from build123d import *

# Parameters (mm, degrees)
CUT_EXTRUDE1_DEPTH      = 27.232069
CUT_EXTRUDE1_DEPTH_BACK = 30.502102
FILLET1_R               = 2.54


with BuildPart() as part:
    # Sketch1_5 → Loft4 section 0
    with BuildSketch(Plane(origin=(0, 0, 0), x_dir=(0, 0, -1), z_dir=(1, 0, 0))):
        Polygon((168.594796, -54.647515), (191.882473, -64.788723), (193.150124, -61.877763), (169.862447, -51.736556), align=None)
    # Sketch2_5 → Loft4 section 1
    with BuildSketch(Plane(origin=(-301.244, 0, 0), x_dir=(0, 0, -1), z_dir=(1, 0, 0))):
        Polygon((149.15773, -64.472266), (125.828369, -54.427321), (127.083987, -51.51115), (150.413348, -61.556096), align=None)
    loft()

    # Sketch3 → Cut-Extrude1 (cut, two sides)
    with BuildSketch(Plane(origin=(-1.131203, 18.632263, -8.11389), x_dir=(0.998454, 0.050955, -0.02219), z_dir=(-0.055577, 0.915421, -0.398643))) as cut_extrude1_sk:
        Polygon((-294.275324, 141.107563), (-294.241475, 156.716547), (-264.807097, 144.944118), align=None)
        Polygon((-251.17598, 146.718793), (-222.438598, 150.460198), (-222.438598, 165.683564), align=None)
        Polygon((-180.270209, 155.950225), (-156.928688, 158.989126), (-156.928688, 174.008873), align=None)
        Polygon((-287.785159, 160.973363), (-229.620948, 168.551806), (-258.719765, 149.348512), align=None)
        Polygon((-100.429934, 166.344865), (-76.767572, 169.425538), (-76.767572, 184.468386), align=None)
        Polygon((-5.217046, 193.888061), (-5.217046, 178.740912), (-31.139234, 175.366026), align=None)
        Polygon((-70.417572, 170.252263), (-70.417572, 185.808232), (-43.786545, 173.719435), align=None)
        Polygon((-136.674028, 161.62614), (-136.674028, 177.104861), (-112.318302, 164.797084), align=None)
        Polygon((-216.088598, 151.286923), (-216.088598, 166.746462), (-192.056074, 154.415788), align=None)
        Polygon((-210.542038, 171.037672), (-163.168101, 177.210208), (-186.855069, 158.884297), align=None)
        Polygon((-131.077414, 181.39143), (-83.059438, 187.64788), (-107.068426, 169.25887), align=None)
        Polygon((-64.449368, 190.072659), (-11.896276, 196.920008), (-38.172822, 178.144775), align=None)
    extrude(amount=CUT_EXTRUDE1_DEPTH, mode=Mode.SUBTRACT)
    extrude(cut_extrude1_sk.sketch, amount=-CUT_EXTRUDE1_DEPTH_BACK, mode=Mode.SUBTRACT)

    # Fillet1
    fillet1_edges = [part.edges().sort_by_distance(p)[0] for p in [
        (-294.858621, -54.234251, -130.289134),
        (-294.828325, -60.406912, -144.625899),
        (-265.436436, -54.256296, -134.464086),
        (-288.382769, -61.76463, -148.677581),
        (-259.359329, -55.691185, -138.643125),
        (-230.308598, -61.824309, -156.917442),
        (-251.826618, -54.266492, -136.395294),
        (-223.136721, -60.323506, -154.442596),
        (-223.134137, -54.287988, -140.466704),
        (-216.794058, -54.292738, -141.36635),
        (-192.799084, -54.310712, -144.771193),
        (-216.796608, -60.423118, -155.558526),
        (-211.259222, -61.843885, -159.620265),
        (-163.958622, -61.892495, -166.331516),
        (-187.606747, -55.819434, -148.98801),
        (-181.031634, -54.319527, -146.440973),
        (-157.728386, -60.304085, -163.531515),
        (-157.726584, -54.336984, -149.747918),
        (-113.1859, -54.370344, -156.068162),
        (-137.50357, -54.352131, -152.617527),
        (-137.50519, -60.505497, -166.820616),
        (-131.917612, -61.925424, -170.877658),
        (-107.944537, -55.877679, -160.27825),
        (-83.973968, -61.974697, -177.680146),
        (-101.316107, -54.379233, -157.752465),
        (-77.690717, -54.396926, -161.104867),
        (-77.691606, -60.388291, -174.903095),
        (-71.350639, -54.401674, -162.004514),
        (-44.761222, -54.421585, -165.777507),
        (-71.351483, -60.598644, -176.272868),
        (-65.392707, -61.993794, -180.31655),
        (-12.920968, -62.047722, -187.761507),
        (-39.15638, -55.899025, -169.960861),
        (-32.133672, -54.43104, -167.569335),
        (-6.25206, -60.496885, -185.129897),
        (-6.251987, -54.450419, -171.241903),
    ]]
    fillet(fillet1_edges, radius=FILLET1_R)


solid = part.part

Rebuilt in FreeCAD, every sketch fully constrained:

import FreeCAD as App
import Part
import Sketcher

V = App.Vector
Q = App.Units.Quantity


def edges_at(feature, points):
    """Names of the edges that pass closest to the given points."""
    edges = feature.Shape.Edges
    near = lambda p: min(range(len(edges)), key=lambda i: edges[i].distToShape(Part.Vertex(*p))[0])
    return sorted({f"Edge{near(p) + 1}" for p in points})

doc = App.newDocument("Part")
body = doc.addObject("PartDesign::Body", "Body")

sketch1 = body.newObject("Sketcher::SketchObject", "Sketch")
sketch1.AttachmentSupport = (doc.getObject("YZ_Plane"), [""])
sketch1.MapMode = "FlatFace"
sketch1.addGeometry([
    Part.LineSegment(V(-54.6, -168.6, 0), V(-64.8, -191.9, 0)),
    Part.LineSegment(V(-64.8, -191.9, 0), V(-61.9, -193.2, 0)),
    Part.LineSegment(V(-61.9, -193.2, 0), V(-51.7, -169.9, 0)),
    Part.LineSegment(V(-51.7, -169.9, 0), V(-54.6, -168.6, 0)),
], False)
sketch1.addConstraint([
    Sketcher.Constraint("Coincident", 0, 2, 1, 1),
    Sketcher.Constraint("Coincident", 1, 2, 2, 1),
    Sketcher.Constraint("Coincident", 2, 2, 3, 1),
    Sketcher.Constraint("Coincident", 3, 2, 0, 1),
    Sketcher.Constraint("Perpendicular", 0, 1),
    Sketcher.Constraint("Perpendicular", 1, 2),
    Sketcher.Constraint("Perpendicular", 2, 3),
    Sketcher.Constraint("Distance", 0, Q("1 in")),
    Sketcher.Constraint("Distance", 1, Q("0.125 in")),
    Sketcher.Constraint("DistanceX", 0, 2, 1, 2, Q("2.91096 mm")),
    Sketcher.Constraint("DistanceX", 0, 2, -1, 1, Q("64.788723 mm")),
    Sketcher.Constraint("DistanceY", 0, 2, -1, 1, Q("191.882473 mm")),
])

sketch2 = body.newObject("Sketcher::SketchObject", "Sketch001")
sketch2.AttachmentSupport = (doc.getObject("YZ_Plane"), [""])
sketch2.MapMode = "FlatFace"
sketch2.AttachmentOffset = App.Placement(V(0, 0, -11.86 * 25.4), App.Rotation())
sketch2.addGeometry([
    Part.LineSegment(V(-54.4, -125.8, 0), V(-64.5, -149.2, 0)),
    Part.LineSegment(V(-64.5, -149.2, 0), V(-61.6, -150.4, 0)),
    Part.LineSegment(V(-61.6, -150.4, 0), V(-51.5, -127.1, 0)),
    Part.LineSegment(V(-51.5, -127.1, 0), V(-54.4, -125.8, 0)),
], False)
sketch2.addConstraint([
    Sketcher.Constraint("Coincident", 0, 2, 1, 1),
    Sketcher.Constraint("Coincident", 1, 2, 2, 1),
    Sketcher.Constraint("Coincident", 2, 2, 3, 1),
    Sketcher.Constraint("Coincident", 3, 2, 0, 1),
    Sketcher.Constraint("Perpendicular", 0, 1),
    Sketcher.Constraint("Perpendicular", 1, 2),
    Sketcher.Constraint("Perpendicular", 2, 3),
    Sketcher.Constraint("Distance", 0, Q("1 in")),
    Sketcher.Constraint("Distance", 1, Q("0.125 in")),
    Sketcher.Constraint("DistanceY", 0, 2, -1, 1, Q("149.15773 mm")),
    Sketcher.Constraint("DistanceY", 1, 2, -1, 1, Q("150.413348 mm")),
    Sketcher.Constraint("DistanceX", 2, 2, -1, 1, Q("51.51115 mm")),
])

additiveloft = body.newObject("PartDesign::AdditiveLoft", "AdditiveLoft")
additiveloft.Profile = sketch1
additiveloft.Sections = [sketch2]

sketch3 = body.newObject("Sketcher::SketchObject", "Sketch002")
sketch3.Placement = App.Placement(V(-1.131203, 18.632263, -8.11389), App.Rotation(V(0.998454405, 0.050954941, -0.022189974), V(-0.000000338, -0.399259981, -0.916837754), V(-0.055576982, 0.915420702, -0.39864287), "ZXY"))
sketch3.addGeometry([
    Part.LineSegment(V(-294, 157, 0), V(-294, 141, 0)),
    Part.LineSegment(V(-294, 141, 0), V(-265, 145, 0)),
    Part.LineSegment(V(-265, 145, 0), V(-294, 157, 0)),
    Part.LineSegment(V(-251, 147, 0), V(-222, 150, 0)),
    Part.LineSegment(V(-222, 150, 0), V(-222, 166, 0)),
    Part.LineSegment(V(-222, 166, 0), V(-251, 147, 0)),
    Part.LineSegment(V(-180, 156, 0), V(-157, 159, 0)),
    Part.LineSegment(V(-157, 159, 0), V(-157, 174, 0)),
    Part.LineSegment(V(-157, 174, 0), V(-180, 156, 0)),
    Part.LineSegment(V(-230, 169, 0), V(-288, 161, 0)),
    Part.LineSegment(V(-288, 161, 0), V(-259, 149, 0)),
    Part.LineSegment(V(-259, 149, 0), V(-230, 169, 0)),
    Part.LineSegment(V(-100, 166, 0), V(-77, 169, 0)),
    Part.LineSegment(V(-77, 169, 0), V(-77, 184, 0)),
    Part.LineSegment(V(-77, 184, 0), V(-100, 166, 0)),
    Part.LineSegment(V(-5, 179, 0), V(-5, 194, 0)),
    Part.LineSegment(V(-5, 194, 0), V(-31, 175, 0)),
    Part.LineSegment(V(-31, 175, 0), V(-5, 179, 0)),
    Part.LineSegment(V(-70, 186, 0), V(-70, 170, 0)),
    Part.LineSegment(V(-70, 170, 0), V(-44, 174, 0)),
    Part.LineSegment(V(-44, 174, 0), V(-70, 186, 0)),
    Part.LineSegment(V(-137, 177, 0), V(-137, 162, 0)),
    Part.LineSegment(V(-137, 162, 0), V(-112, 165, 0)),
    Part.LineSegment(V(-112, 165, 0), V(-137, 177, 0)),
    Part.LineSegment(V(-216, 167, 0), V(-216, 151, 0)),
    Part.LineSegment(V(-216, 151, 0), V(-192, 154, 0)),
    Part.LineSegment(V(-192, 154, 0), V(-216, 167, 0)),
    Part.LineSegment(V(-163, 177, 0), V(-211, 171, 0)),
    Part.LineSegment(V(-211, 171, 0), V(-187, 159, 0)),
    Part.LineSegment(V(-187, 159, 0), V(-163, 177, 0)),
    Part.LineSegment(V(-83, 188, 0), V(-131, 181, 0)),
    Part.LineSegment(V(-131, 181, 0), V(-107, 169, 0)),
    Part.LineSegment(V(-107, 169, 0), V(-83, 188, 0)),
    Part.LineSegment(V(-12, 197, 0), V(-64, 190, 0)),
    Part.LineSegment(V(-64, 190, 0), V(-38, 178, 0)),
    Part.LineSegment(V(-38, 178, 0), V(-12, 197, 0)),
], False)
sketch3.addConstraint([
    Sketcher.Constraint("Coincident", 0, 2, 1, 1),
    Sketcher.Constraint("Coincident", 1, 2, 2, 1),
    Sketcher.Constraint("Coincident", 2, 2, 0, 1),
    Sketcher.Constraint("Coincident", 3, 2, 4, 1),
    Sketcher.Constraint("Coincident", 4, 2, 5, 1),
    Sketcher.Constraint("Coincident", 5, 2, 3, 1),
    Sketcher.Constraint("Coincident", 6, 2, 7, 1),
    Sketcher.Constraint("Coincident", 7, 2, 8, 1),
    Sketcher.Constraint("Coincident", 8, 2, 6, 1),
    Sketcher.Constraint("Coincident", 9, 2, 10, 1),
    Sketcher.Constraint("Coincident", 10, 2, 11, 1),
    Sketcher.Constraint("Coincident", 11, 2, 9, 1),
    Sketcher.Constraint("Coincident", 12, 2, 13, 1),
    Sketcher.Constraint("Coincident", 13, 2, 14, 1),
    Sketcher.Constraint("Coincident", 14, 2, 12, 1),
    Sketcher.Constraint("Coincident", 15, 2, 16, 1),
    Sketcher.Constraint("Coincident", 16, 2, 17, 1),
    Sketcher.Constraint("Coincident", 17, 2, 15, 1),
    Sketcher.Constraint("Coincident", 18, 2, 19, 1),
    Sketcher.Constraint("Coincident", 19, 2, 20, 1),
    Sketcher.Constraint("Coincident", 20, 2, 18, 1),
    Sketcher.Constraint("Coincident", 21, 2, 22, 1),
    Sketcher.Constraint("Coincident", 22, 2, 23, 1),
    Sketcher.Constraint("Coincident", 23, 2, 21, 1),
    Sketcher.Constraint("Coincident", 24, 2, 25, 1),
    Sketcher.Constraint("Coincident", 25, 2, 26, 1),
    Sketcher.Constraint("Coincident", 26, 2, 24, 1),
    Sketcher.Constraint("Coincident", 27, 2, 28, 1),
    Sketcher.Constraint("Coincident", 28, 2, 29, 1),
    Sketcher.Constraint("Coincident", 29, 2, 27, 1),
    Sketcher.Constraint("Coincident", 30, 2, 31, 1),
    Sketcher.Constraint("Coincident", 31, 2, 32, 1),
    Sketcher.Constraint("Coincident", 32, 2, 30, 1),
    Sketcher.Constraint("Coincident", 33, 2, 34, 1),
    Sketcher.Constraint("Coincident", 34, 2, 35, 1),
    Sketcher.Constraint("Coincident", 35, 2, 33, 1),
    Sketcher.Constraint("Vertical", 4),
    Sketcher.Constraint("Vertical", 7),
    Sketcher.Constraint("Vertical", 13),
    Sketcher.Constraint("Vertical", 15),
    Sketcher.Constraint("Vertical", 18),
    Sketcher.Constraint("Vertical", 21),
    Sketcher.Constraint("Vertical", 24),
    Sketcher.Constraint("Parallel", 1, 3),
    Sketcher.Constraint("Parallel", 3, 6),
    Sketcher.Constraint("Parallel", 2, 10),
    Sketcher.Constraint("Parallel", 5, 11),
    Sketcher.Constraint("Parallel", 6, 12),
    Sketcher.Constraint("Parallel", 12, 17),
    Sketcher.Constraint("Parallel", 17, 19),
    Sketcher.Constraint("Parallel", 19, 22),
    Sketcher.Constraint("Parallel", 22, 25),
    Sketcher.Constraint("Parallel", 9, 27),
    Sketcher.Constraint("Parallel", 26, 28),
    Sketcher.Constraint("Parallel", 8, 29),
    Sketcher.Constraint("Parallel", 27, 30),
    Sketcher.Constraint("Parallel", 23, 31),
    Sketcher.Constraint("Parallel", 14, 32),
    Sketcher.Constraint("Parallel", 30, 33),
    Sketcher.Constraint("Parallel", 20, 34),
    Sketcher.Constraint("Parallel", 16, 35),
    Sketcher.Constraint("DistanceX", 12, 2, 18, 2, Q("0.25 in")),
    Sketcher.Constraint("DistanceX", 3, 2, 24, 2, Q("0.25 in")),
    Sketcher.Constraint("Distance", 33, Q("52.997299 mm")),
    Sketcher.Constraint("DistanceY", 13, 1, 13, 2, Q("15.042848 mm")),
    Sketcher.Constraint("DistanceY", 15, 1, 15, 2, Q("15.147149 mm")),
    Sketcher.Constraint("DistanceY", 18, 2, 18, 1, Q("15.555969 mm")),
    Sketcher.Constraint("DistanceY", 21, 2, 21, 1, Q("15.478721 mm")),
    Sketcher.Constraint("DistanceY", 24, 2, 24, 1, Q("15.459539 mm")),
    Sketcher.Constraint("DistanceY", -1, 1, 3, 2, Q("150.460198 mm")),
    Sketcher.Constraint("DistanceX", 22, 2, -1, 1, Q("112.318302 mm")),
    Sketcher.Constraint("DistanceX", 29, 2, -1, 1, Q("163.168101 mm")),
    Sketcher.Constraint("DistanceX", 1, 2, 3, 2, Q("42.368499 mm")),
    Sketcher.Constraint("DistanceY", 0, 2, 4, 2, Q("24.576001 mm")),
    Sketcher.Constraint("DistanceY", 8, 2, 6, 2, Q("3.038901 mm")),
    Sketcher.Constraint("DistanceY", 0, 2, 9, 2, Q("19.8658 mm")),
    Sketcher.Constraint("DistanceX", 14, 2, 16, 2, Q("69.2907 mm")),
    Sketcher.Constraint("DistanceY", 14, 2, 18, 2, Q("3.907398 mm")),
    Sketcher.Constraint("DistanceX", 19, 2, 17, 2, Q("38.569499 mm")),
    Sketcher.Constraint("DistanceY", 21, 2, 12, 2, Q("7.799398 mm")),
    Sketcher.Constraint("DistanceX", 21, 2, 31, 2, Q("29.605602 mm")),
    Sketcher.Constraint("Distance", 0, Q("15.609021 mm")),
    Sketcher.Constraint("Distance", 3, Q("28.979911 mm")),
    Sketcher.Constraint("Distance", 6, Q("23.538511 mm")),
    Sketcher.Constraint("Distance", 11, Q("34.864131 mm")),
    Sketcher.Constraint("Distance", 12, Q("23.86206 mm")),
    Sketcher.Constraint("Distance", 17, Q("26.140958 mm")),
    Sketcher.Constraint("Distance", 26, Q("27.011252 mm")),
    Sketcher.Constraint("Distance", 29, Q("29.94848 mm")),
    Sketcher.Constraint("Distance", 30, Q("48.423849 mm")),
    Sketcher.Constraint("Distance", 31, Q("26.900381 mm")),
    Sketcher.Constraint("DistanceY", 4, 1, 4, 2, Q("15.223366 mm")),
    Sketcher.Constraint("DistanceY", 7, 1, 7, 2, Q("15.019747 mm")),
    Sketcher.Constraint("DistanceY", -1, 1, 1, 2, Q("144.944118 mm")),
    Sketcher.Constraint("DistanceX", 5, 2, -1, 1, Q("251.17598 mm")),
    Sketcher.Constraint("DistanceX", 8, 2, -1, 1, Q("180.270209 mm")),
    Sketcher.Constraint("DistanceX", 9, 2, -1, 1, Q("287.785159 mm")),
    Sketcher.Constraint("DistanceX", 12, 2, -1, 1, Q("76.767572 mm")),
    Sketcher.Constraint("DistanceY", -1, 1, 12, 2, Q("169.425538 mm")),
    Sketcher.Constraint("DistanceY", -1, 1, 15, 2, Q("193.888061 mm")),
    Sketcher.Constraint("DistanceY", -1, 1, 25, 2, Q("154.415788 mm")),
    Sketcher.Constraint("DistanceY", -1, 1, 29, 2, Q("177.210208 mm")),
    Sketcher.Constraint("DistanceY", -1, 1, 30, 2, Q("181.39143 mm")),
    Sketcher.Constraint("DistanceY", -1, 1, 31, 2, Q("169.25887 mm")),
    Sketcher.Constraint("DistanceY", -1, 1, 33, 2, Q("190.072659 mm")),
    Sketcher.Constraint("DistanceX", 34, 2, -1, 1, Q("38.172822 mm")),
    Sketcher.Constraint("DistanceX", 0, 2, 2, 2, Q("0.033849 mm")),
    Sketcher.Constraint("DistanceY", 6, 2, 4, 2, Q("6.694438 mm")),
])
pocket1 = body.newObject("PartDesign::Pocket", "Pocket")
pocket1.Profile = sketch3
pocket1.Type = "ThroughAll"
pocket1.Midplane = True
doc.recompute()

fillet = body.newObject("PartDesign::Fillet", "Fillet")
fillet.Base = (pocket1, edges_at(pocket1, [
    (-294.859, -54.234, -130.289),
    (-294.828, -60.407, -144.626),
    (-265.436, -54.256, -134.464),
    (-288.383, -61.765, -148.677),
    (-259.359, -55.691, -138.643),
    (-230.309, -61.824, -156.917),
    (-251.827, -54.266, -136.395),
    (-223.137, -60.323, -154.443),
    (-223.134, -54.288, -140.467),
    (-216.794, -54.293, -141.366),
    (-192.799, -54.311, -144.771),
    (-216.797, -60.423, -155.558),
    (-211.259, -61.844, -159.62),
    (-163.959, -61.892, -166.331),
    (-187.607, -55.819, -148.988),
    (-181.032, -54.32, -146.441),
    (-157.728, -60.304, -163.531),
    (-157.727, -54.337, -149.748),
    (-113.186, -54.37, -156.068),
    (-137.504, -54.352, -152.617),
    (-137.505, -60.505, -166.821),
    (-131.918, -61.925, -170.878),
    (-107.945, -55.878, -160.278),
    (-83.974, -61.975, -177.68),
    (-101.316, -54.379, -157.752),
    (-77.691, -54.397, -161.105),
    (-77.692, -60.388, -174.903),
    (-71.351, -54.402, -162.004),
    (-44.761, -54.422, -165.777),
    (-71.352, -60.599, -176.273),
    (-65.393, -61.994, -180.317),
    (-12.921, -62.048, -187.762),
    (-39.156, -55.899, -169.961),
    (-32.134, -54.431, -167.569),
    (-6.252, -60.497, -185.13),
    (-6.252, -54.45, -171.242),
]))
fillet.Radius = Q("0.1 in")

doc.recompute()
